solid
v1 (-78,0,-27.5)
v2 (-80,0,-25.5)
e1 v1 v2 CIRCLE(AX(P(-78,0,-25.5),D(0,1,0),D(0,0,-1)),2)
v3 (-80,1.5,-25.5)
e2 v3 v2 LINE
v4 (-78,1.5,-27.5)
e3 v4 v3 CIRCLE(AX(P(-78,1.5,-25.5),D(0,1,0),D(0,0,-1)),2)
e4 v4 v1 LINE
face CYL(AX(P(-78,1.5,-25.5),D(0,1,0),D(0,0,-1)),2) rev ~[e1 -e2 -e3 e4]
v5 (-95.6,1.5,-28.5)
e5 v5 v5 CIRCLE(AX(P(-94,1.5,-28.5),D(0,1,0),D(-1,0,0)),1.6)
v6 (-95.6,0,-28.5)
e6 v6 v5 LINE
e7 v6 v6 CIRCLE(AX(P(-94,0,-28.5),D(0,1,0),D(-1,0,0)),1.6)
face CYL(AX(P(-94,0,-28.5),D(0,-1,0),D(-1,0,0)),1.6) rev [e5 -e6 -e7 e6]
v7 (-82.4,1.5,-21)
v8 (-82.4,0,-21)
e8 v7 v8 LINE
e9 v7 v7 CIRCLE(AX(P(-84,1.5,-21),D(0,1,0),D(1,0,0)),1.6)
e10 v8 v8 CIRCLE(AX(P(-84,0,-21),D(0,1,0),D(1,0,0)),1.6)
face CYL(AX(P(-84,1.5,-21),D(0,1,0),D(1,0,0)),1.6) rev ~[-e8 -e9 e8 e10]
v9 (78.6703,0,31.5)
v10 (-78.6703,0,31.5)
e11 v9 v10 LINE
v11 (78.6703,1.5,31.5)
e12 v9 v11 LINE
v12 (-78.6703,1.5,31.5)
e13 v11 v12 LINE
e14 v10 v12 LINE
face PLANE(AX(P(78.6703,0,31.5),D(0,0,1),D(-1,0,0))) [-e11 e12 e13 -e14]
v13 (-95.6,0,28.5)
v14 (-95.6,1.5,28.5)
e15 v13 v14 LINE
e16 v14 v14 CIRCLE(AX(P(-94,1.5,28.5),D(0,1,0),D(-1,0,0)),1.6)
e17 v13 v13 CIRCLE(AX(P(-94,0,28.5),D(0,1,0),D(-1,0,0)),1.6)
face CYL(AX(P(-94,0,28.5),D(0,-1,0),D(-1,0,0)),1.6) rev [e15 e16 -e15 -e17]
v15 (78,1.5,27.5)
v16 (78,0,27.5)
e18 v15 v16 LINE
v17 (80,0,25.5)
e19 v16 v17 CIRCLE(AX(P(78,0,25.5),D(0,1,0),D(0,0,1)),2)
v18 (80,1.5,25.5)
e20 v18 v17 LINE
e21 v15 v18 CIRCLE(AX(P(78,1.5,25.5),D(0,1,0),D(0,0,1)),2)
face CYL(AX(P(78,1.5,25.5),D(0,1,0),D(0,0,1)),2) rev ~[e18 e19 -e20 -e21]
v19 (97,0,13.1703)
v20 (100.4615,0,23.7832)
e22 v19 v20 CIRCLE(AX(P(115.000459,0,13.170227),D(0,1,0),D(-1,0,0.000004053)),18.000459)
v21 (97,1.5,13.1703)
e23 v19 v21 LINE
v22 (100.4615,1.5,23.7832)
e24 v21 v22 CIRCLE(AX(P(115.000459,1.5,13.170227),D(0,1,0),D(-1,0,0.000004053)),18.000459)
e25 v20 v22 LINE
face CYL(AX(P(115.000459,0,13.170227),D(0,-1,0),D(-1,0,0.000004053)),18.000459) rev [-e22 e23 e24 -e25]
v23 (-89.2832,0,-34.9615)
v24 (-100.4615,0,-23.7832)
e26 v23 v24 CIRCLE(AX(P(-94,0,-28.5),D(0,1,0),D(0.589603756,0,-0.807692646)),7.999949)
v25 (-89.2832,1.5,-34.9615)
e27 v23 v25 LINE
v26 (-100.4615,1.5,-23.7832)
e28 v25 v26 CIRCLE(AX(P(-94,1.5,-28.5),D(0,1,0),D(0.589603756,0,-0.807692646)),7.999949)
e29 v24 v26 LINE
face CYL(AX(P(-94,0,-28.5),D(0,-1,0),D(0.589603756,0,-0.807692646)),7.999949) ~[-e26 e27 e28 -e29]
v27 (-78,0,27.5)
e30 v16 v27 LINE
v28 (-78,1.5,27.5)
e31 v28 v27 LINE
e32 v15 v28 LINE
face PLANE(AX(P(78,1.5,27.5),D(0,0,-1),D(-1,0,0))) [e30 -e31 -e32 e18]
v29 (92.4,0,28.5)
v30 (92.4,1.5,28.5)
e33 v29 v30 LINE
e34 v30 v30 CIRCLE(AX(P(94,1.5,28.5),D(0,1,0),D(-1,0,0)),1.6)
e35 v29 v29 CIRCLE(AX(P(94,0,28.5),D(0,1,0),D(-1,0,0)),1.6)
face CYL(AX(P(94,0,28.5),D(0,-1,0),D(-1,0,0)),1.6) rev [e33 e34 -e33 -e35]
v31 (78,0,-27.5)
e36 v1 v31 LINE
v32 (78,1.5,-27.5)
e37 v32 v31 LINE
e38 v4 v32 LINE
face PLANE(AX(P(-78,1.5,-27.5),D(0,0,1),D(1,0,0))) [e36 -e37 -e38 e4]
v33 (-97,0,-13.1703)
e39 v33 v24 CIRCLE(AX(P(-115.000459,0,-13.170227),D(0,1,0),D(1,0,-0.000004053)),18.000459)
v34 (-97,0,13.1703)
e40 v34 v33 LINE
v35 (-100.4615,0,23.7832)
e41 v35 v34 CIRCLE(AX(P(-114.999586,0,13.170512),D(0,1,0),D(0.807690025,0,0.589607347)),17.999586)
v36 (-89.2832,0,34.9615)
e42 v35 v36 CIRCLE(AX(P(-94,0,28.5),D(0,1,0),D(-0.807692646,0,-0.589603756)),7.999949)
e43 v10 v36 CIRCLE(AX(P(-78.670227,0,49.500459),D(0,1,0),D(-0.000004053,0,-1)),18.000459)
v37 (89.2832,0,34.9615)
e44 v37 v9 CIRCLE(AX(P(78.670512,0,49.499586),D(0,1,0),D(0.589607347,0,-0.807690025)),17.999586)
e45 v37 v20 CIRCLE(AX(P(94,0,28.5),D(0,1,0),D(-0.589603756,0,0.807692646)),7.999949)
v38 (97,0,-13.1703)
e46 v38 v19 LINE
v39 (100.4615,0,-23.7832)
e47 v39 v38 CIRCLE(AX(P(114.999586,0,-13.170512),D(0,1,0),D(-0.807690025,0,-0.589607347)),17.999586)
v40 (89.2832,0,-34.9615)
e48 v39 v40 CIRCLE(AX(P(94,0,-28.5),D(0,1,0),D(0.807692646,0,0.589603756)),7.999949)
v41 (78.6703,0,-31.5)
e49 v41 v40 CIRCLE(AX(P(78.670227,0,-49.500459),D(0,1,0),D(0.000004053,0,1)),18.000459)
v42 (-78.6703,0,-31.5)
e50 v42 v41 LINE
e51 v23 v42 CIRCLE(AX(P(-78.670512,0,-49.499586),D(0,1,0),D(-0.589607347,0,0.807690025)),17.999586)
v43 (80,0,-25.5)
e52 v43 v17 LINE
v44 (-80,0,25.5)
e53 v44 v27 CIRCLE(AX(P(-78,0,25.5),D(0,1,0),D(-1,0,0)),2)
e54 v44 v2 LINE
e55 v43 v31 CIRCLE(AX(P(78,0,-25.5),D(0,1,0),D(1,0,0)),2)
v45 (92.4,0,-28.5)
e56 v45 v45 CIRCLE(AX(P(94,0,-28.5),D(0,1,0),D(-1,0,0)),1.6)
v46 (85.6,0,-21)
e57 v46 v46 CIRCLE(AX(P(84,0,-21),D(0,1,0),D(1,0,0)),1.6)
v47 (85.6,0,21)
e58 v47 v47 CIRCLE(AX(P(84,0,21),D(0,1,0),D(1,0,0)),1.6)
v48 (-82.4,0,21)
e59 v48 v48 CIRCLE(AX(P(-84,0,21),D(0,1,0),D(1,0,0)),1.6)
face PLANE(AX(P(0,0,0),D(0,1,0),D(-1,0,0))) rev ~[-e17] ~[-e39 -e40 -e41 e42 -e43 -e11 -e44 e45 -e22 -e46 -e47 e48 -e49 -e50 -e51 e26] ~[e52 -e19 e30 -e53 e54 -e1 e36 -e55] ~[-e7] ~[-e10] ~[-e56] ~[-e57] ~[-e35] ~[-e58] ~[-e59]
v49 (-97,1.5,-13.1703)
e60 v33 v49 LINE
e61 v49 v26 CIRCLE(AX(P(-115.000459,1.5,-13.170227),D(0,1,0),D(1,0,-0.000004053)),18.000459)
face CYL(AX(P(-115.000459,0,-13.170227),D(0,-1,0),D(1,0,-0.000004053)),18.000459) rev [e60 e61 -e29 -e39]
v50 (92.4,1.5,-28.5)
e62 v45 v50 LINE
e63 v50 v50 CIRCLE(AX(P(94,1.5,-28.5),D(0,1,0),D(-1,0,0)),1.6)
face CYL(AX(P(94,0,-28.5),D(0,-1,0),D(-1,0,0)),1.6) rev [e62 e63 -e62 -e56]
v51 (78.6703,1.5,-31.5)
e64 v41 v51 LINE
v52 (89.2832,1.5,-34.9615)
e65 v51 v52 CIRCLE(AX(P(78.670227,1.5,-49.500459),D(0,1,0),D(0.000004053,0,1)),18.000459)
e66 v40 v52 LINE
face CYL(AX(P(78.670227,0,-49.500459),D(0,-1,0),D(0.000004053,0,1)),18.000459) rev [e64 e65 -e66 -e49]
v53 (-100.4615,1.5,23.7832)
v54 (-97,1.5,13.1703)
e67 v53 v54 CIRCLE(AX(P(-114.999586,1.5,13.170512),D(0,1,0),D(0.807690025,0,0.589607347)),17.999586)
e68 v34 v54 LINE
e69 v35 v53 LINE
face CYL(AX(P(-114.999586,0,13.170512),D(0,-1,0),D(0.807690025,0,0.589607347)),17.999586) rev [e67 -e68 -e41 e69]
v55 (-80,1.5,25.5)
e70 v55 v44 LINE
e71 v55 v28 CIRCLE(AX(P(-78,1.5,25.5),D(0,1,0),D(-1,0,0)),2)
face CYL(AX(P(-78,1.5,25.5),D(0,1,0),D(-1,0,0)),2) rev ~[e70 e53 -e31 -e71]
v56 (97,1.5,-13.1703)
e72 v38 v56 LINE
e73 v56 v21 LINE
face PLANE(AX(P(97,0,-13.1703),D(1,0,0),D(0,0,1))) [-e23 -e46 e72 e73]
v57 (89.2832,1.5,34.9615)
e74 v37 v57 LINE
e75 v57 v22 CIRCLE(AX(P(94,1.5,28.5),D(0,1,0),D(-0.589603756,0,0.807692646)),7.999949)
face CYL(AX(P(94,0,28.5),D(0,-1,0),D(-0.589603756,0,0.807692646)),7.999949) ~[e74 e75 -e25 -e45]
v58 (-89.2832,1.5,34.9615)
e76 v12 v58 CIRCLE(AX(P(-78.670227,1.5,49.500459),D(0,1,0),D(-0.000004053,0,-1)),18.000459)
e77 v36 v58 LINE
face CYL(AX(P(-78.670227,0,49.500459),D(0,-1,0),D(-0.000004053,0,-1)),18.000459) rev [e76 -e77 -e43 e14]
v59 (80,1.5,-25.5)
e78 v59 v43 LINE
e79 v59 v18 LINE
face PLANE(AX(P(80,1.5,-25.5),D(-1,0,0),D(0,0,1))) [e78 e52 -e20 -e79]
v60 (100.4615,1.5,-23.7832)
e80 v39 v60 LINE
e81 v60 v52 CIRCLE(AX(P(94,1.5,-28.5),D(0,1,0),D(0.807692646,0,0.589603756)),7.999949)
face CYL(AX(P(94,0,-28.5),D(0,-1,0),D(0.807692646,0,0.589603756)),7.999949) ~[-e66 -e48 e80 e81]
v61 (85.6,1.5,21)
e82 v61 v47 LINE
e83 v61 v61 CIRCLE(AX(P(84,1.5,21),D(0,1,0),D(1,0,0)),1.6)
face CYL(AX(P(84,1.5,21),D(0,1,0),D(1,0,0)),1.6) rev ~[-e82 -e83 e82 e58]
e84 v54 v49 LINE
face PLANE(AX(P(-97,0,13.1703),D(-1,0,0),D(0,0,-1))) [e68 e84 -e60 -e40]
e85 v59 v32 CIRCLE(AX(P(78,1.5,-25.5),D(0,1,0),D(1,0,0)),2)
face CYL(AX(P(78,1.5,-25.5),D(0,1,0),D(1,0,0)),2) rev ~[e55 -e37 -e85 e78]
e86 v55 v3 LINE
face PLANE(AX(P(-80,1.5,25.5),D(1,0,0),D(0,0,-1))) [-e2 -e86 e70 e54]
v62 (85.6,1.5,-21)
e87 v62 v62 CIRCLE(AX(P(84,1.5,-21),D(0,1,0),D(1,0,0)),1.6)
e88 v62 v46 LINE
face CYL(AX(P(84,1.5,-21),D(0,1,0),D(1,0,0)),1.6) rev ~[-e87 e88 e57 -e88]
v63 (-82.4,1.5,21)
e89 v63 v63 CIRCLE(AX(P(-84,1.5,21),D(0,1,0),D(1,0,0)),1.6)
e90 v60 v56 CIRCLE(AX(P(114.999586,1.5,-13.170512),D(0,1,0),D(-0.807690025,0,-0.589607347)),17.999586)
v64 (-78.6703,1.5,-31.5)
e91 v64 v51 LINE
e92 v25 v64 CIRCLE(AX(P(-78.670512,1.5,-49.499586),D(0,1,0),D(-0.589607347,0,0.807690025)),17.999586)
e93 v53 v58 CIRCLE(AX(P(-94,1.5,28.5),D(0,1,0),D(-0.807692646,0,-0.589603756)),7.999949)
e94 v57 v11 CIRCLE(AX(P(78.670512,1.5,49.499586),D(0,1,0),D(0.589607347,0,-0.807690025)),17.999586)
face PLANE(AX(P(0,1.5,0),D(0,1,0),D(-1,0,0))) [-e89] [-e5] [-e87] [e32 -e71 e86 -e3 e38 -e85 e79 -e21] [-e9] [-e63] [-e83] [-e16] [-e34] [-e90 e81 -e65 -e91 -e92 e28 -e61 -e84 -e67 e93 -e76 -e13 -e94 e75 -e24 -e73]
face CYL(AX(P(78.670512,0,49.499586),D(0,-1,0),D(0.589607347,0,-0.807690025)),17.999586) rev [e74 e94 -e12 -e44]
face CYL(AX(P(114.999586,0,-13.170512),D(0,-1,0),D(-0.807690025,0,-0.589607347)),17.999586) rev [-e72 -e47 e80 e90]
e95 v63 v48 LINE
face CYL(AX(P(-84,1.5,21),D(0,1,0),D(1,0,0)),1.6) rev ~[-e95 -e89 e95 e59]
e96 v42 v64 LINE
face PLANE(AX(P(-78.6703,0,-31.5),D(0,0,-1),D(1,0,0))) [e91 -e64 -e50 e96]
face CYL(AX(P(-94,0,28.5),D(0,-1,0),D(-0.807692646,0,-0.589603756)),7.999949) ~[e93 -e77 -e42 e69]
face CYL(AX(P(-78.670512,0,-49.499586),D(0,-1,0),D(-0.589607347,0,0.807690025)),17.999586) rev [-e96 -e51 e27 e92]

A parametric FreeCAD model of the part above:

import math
import FreeCAD as App
import Part
import Sketcher
from FreeCAD import Vector
Q = App.Units.Quantity

doc = App.newDocument("Part")
body = doc.addObject("PartDesign::Body", "Body")

sketch1 = body.newObject("Sketcher::SketchObject", "Sketch")
sketch1.AttachmentSupport = (doc.getObject("XZ_Plane"), [""])
sketch1.MapMode = "FlatFace"
sketch1.addGeometry([
    Part.LineSegment(Vector(78.7, -31.5, 0), Vector(-78.7, -31.5, 0)),
    Part.ArcOfCircle(Part.Circle(Vector(-78.7, -49.5, 0), Vector(0, 0, 1), 18), math.radians(90), math.radians(126)),
    Part.ArcOfCircle(Part.Circle(Vector(-94, -28.5, 0), Vector(0, 0, 1), 8), math.radians(144), math.radians(306)),
    Part.ArcOfCircle(Part.Circle(Vector(-115, -13.2, 0), Vector(0, 0, 1), 18), math.radians(-36), math.radians(0)),
    Part.LineSegment(Vector(-97, -13.2, 0), Vector(-97, 13.2, 0)),
    Part.ArcOfCircle(Part.Circle(Vector(-115, 13.2, 0), Vector(0, 0, 1), 18), math.radians(0), math.radians(36)),
    Part.ArcOfCircle(Part.Circle(Vector(-94, 28.5, 0), Vector(0, 0, 1), 8), math.radians(54), math.radians(216)),
    Part.ArcOfCircle(Part.Circle(Vector(-78.7, 49.5, 0), Vector(0, 0, 1), 18), math.radians(-126), math.radians(-90)),
    Part.LineSegment(Vector(-78.7, 31.5, 0), Vector(78.7, 31.5, 0)),
    Part.ArcOfCircle(Part.Circle(Vector(78.7, 49.5, 0), Vector(0, 0, 1), 18), math.radians(-90), math.radians(-54)),
    Part.ArcOfCircle(Part.Circle(Vector(94, 28.5, 0), Vector(0, 0, 1), 8), math.radians(-36), math.radians(126)),
    Part.ArcOfCircle(Part.Circle(Vector(115, 13.2, 0), Vector(0, 0, 1), 18), math.radians(144), math.radians(180)),
    Part.LineSegment(Vector(97, 13.2, 0), Vector(97, -13.2, 0)),
    Part.ArcOfCircle(Part.Circle(Vector(115, -13.2, 0), Vector(0, 0, 1), 18), math.radians(180), math.radians(216)),
    Part.ArcOfCircle(Part.Circle(Vector(94, -28.5, 0), Vector(0, 0, 1), 8), math.radians(-126), math.radians(36)),
    Part.ArcOfCircle(Part.Circle(Vector(78.7, -49.5, 0), Vector(0, 0, 1), 18), math.radians(54), math.radians(90)),
    Part.Circle(Vector(94, -28.5, 0), Vector(0, 0, 1), 1.6),
    Part.Circle(Vector(-94, -28.5, 0), Vector(0, 0, 1), 1.6),
    Part.Circle(Vector(94, 28.5, 0), Vector(0, 0, 1), 1.6),
    Part.Circle(Vector(-94, 28.5, 0), Vector(0, 0, 1), 1.6),
], False)
sketch1.addConstraint([
    Sketcher.Constraint("Tangent", 0, 2, 1, 1),
    Sketcher.Constraint("Tangent", 1, 2, 2, 2),
    Sketcher.Constraint("Tangent", 2, 1, 3, 1),
    Sketcher.Constraint("Tangent", 3, 2, 4, 1),
    Sketcher.Constraint("Tangent", 4, 2, 5, 1),
    Sketcher.Constraint("Tangent", 5, 2, 6, 2),
    Sketcher.Constraint("Tangent", 6, 1, 7, 1),
    Sketcher.Constraint("Tangent", 7, 2, 8, 1),
    Sketcher.Constraint("Tangent", 8, 2, 9, 1),
    Sketcher.Constraint("Tangent", 9, 2, 10, 2),
    Sketcher.Constraint("Tangent", 10, 1, 11, 1),
    Sketcher.Constraint("Tangent", 11, 2, 12, 1),
    Sketcher.Constraint("Tangent", 12, 2, 13, 1),
    Sketcher.Constraint("Tangent", 13, 2, 14, 2),
    Sketcher.Constraint("Tangent", 14, 1, 15, 1),
    Sketcher.Constraint("Tangent", 15, 2, 0, 1),
    Sketcher.Constraint("Horizontal", 0),
    Sketcher.Constraint("Vertical", 4),
    Sketcher.Constraint("Horizontal", 8),
    Sketcher.Constraint("Vertical", 12),
    Sketcher.Constraint("Coincident", 16, 3, 14, 3),
    Sketcher.Constraint("Coincident", 17, 3, 2, 3),
    Sketcher.Constraint("Coincident", 18, 3, 10, 3),
    Sketcher.Constraint("Coincident", 19, 3, 6, 3),
    Sketcher.Constraint("Equal", 1, 3),
    Sketcher.Constraint("Equal", 3, 5),
    Sketcher.Constraint("Equal", 2, 6),
    Sketcher.Constraint("Equal", 5, 7),
    Sketcher.Constraint("Equal", 7, 9),
    Sketcher.Constraint("Equal", 6, 10),
    Sketcher.Constraint("Equal", 9, 11),
    Sketcher.Constraint("Equal", 11, 13),
    Sketcher.Constraint("Equal", 10, 14),
    Sketcher.Constraint("Equal", 13, 15),
    Sketcher.Constraint("Equal", 16, 17),
    Sketcher.Constraint("Equal", 17, 18),
    Sketcher.Constraint("Equal", 18, 19),
    Sketcher.Constraint("Symmetric", 1, 3, 9, 3, -1, 1),
    Sketcher.Constraint("Symmetric", 3, 3, 11, 3, -1, 1),
    Sketcher.Constraint("Symmetric", 6, 3, 14, 3, -1, 1),
    Sketcher.Constraint("Symmetric", 6, 3, 10, 3, -2),
    Sketcher.Constraint("Radius", 1, Q("18 mm")),
    Sketcher.Constraint("Radius", 2, Q("8 mm")),
    Sketcher.Constraint("Diameter", 16, Q("3.2 mm")),
    Sketcher.Constraint("DistanceY", 0, 2, 2, 3, Q("3 mm")),
    Sketcher.Constraint("DistanceX", 3, 2, 2, 3, Q("3 mm")),
    Sketcher.Constraint("DistanceX", 2, 3, -1, 1, Q("94 mm")),
    Sketcher.Constraint("DistanceY", 2, 3, 6, 3, Q("57 mm")),
])
pad1 = body.newObject("PartDesign::Pad", "Pad")
pad1.Profile = sketch1
pad1.Length = 1.5
pad1.Reversed = True

sketch2 = body.newObject("Sketcher::SketchObject", "Sketch001")
sketch2.AttachmentSupport = (doc.getObject("XZ_Plane"), [""])
sketch2.MapMode = "FlatFace"
sketch2.AttachmentOffset = App.Placement(Vector(0, 0, -1.5), App.Rotation())
sketch2.addGeometry([
    Part.Circle(Vector(-84, -21, 0), Vector(0, 0, 1), 1.6),
    Part.Circle(Vector(-84, 21, 0), Vector(0, 0, 1), 1.6),
    Part.Circle(Vector(84, 21, 0), Vector(0, 0, 1), 1.6),
    Part.Circle(Vector(84, -21, 0), Vector(0, 0, 1), 1.6),
    Part.LineSegment(Vector(78, -27.5, 0), Vector(-78, -27.5, 0)),
    Part.ArcOfCircle(Part.Circle(Vector(-78, -25.5, 0), Vector(0, 0, 1), 2), math.radians(180), math.radians(270)),
    Part.LineSegment(Vector(-80, -25.5, 0), Vector(-80, 25.5, 0)),
    Part.ArcOfCircle(Part.Circle(Vector(-78, 25.5, 0), Vector(0, 0, 1), 2), math.radians(90), math.radians(180)),
    Part.LineSegment(Vector(-78, 27.5, 0), Vector(78, 27.5, 0)),
    Part.ArcOfCircle(Part.Circle(Vector(78, 25.5, 0), Vector(0, 0, 1), 2), math.radians(0), math.radians(90)),
    Part.LineSegment(Vector(80, 25.5, 0), Vector(80, -25.5, 0)),
    Part.ArcOfCircle(Part.Circle(Vector(78, -25.5, 0), Vector(0, 0, 1), 2), math.radians(-90), math.radians(0)),
], False)
sketch2.addConstraint([
    Sketcher.Constraint("Tangent", 4, 2, 5, 2),
    Sketcher.Constraint("Tangent", 5, 1, 6, 1),
    Sketcher.Constraint("Tangent", 6, 2, 7, 2),
    Sketcher.Constraint("Tangent", 7, 1, 8, 1),
    Sketcher.Constraint("Tangent", 8, 2, 9, 2),
    Sketcher.Constraint("Tangent", 9, 1, 10, 1),
    Sketcher.Constraint("Tangent", 10, 2, 11, 2),
    Sketcher.Constraint("Tangent", 11, 1, 4, 1),
    Sketcher.Constraint("Horizontal", 4),
    Sketcher.Constraint("Vertical", 6),
    Sketcher.Constraint("Horizontal", 8),
    Sketcher.Constraint("Vertical", 10),
    Sketcher.Constraint("Equal", 0, 1),
    Sketcher.Constraint("Equal", 1, 2),
    Sketcher.Constraint("Equal", 2, 3),
    Sketcher.Constraint("Equal", 5, 7),
    Sketcher.Constraint("Equal", 7, 9),
    Sketcher.Constraint("Equal", 9, 11),
    Sketcher.Constraint("Symmetric", 0, 3, 2, 3, -1, 1),
    Sketcher.Constraint("Symmetric", 1, 3, 3, 3, -1, 1),
    Sketcher.Constraint("Symmetric", 5, 3, 9, 3, -1, 1),
    Sketcher.Constraint("Symmetric", 1, 3, 2, 3, -2),
    Sketcher.Constraint("Radius", 5, Q("2 mm")),
    Sketcher.Constraint("Diameter", 0, Q("3.2 mm")),
    Sketcher.Constraint("DistanceY", 0, 3, 1, 3, Q("42 mm")),
    Sketcher.Constraint("DistanceX", 1, 3, 2, 3, Q("168 mm")),
    Sketcher.Constraint("DistanceX", 4, 2, 4, 1, Q("156 mm")),
    Sketcher.Constraint("DistanceY", 6, 1, 6, 2, Q("51 mm")),
])
pocket1 = body.newObject("PartDesign::Pocket", "Pocket")
pocket1.Profile = sketch2
pocket1.Type = "ThroughAll"
pocket1.Reversed = True

doc.recompute()
